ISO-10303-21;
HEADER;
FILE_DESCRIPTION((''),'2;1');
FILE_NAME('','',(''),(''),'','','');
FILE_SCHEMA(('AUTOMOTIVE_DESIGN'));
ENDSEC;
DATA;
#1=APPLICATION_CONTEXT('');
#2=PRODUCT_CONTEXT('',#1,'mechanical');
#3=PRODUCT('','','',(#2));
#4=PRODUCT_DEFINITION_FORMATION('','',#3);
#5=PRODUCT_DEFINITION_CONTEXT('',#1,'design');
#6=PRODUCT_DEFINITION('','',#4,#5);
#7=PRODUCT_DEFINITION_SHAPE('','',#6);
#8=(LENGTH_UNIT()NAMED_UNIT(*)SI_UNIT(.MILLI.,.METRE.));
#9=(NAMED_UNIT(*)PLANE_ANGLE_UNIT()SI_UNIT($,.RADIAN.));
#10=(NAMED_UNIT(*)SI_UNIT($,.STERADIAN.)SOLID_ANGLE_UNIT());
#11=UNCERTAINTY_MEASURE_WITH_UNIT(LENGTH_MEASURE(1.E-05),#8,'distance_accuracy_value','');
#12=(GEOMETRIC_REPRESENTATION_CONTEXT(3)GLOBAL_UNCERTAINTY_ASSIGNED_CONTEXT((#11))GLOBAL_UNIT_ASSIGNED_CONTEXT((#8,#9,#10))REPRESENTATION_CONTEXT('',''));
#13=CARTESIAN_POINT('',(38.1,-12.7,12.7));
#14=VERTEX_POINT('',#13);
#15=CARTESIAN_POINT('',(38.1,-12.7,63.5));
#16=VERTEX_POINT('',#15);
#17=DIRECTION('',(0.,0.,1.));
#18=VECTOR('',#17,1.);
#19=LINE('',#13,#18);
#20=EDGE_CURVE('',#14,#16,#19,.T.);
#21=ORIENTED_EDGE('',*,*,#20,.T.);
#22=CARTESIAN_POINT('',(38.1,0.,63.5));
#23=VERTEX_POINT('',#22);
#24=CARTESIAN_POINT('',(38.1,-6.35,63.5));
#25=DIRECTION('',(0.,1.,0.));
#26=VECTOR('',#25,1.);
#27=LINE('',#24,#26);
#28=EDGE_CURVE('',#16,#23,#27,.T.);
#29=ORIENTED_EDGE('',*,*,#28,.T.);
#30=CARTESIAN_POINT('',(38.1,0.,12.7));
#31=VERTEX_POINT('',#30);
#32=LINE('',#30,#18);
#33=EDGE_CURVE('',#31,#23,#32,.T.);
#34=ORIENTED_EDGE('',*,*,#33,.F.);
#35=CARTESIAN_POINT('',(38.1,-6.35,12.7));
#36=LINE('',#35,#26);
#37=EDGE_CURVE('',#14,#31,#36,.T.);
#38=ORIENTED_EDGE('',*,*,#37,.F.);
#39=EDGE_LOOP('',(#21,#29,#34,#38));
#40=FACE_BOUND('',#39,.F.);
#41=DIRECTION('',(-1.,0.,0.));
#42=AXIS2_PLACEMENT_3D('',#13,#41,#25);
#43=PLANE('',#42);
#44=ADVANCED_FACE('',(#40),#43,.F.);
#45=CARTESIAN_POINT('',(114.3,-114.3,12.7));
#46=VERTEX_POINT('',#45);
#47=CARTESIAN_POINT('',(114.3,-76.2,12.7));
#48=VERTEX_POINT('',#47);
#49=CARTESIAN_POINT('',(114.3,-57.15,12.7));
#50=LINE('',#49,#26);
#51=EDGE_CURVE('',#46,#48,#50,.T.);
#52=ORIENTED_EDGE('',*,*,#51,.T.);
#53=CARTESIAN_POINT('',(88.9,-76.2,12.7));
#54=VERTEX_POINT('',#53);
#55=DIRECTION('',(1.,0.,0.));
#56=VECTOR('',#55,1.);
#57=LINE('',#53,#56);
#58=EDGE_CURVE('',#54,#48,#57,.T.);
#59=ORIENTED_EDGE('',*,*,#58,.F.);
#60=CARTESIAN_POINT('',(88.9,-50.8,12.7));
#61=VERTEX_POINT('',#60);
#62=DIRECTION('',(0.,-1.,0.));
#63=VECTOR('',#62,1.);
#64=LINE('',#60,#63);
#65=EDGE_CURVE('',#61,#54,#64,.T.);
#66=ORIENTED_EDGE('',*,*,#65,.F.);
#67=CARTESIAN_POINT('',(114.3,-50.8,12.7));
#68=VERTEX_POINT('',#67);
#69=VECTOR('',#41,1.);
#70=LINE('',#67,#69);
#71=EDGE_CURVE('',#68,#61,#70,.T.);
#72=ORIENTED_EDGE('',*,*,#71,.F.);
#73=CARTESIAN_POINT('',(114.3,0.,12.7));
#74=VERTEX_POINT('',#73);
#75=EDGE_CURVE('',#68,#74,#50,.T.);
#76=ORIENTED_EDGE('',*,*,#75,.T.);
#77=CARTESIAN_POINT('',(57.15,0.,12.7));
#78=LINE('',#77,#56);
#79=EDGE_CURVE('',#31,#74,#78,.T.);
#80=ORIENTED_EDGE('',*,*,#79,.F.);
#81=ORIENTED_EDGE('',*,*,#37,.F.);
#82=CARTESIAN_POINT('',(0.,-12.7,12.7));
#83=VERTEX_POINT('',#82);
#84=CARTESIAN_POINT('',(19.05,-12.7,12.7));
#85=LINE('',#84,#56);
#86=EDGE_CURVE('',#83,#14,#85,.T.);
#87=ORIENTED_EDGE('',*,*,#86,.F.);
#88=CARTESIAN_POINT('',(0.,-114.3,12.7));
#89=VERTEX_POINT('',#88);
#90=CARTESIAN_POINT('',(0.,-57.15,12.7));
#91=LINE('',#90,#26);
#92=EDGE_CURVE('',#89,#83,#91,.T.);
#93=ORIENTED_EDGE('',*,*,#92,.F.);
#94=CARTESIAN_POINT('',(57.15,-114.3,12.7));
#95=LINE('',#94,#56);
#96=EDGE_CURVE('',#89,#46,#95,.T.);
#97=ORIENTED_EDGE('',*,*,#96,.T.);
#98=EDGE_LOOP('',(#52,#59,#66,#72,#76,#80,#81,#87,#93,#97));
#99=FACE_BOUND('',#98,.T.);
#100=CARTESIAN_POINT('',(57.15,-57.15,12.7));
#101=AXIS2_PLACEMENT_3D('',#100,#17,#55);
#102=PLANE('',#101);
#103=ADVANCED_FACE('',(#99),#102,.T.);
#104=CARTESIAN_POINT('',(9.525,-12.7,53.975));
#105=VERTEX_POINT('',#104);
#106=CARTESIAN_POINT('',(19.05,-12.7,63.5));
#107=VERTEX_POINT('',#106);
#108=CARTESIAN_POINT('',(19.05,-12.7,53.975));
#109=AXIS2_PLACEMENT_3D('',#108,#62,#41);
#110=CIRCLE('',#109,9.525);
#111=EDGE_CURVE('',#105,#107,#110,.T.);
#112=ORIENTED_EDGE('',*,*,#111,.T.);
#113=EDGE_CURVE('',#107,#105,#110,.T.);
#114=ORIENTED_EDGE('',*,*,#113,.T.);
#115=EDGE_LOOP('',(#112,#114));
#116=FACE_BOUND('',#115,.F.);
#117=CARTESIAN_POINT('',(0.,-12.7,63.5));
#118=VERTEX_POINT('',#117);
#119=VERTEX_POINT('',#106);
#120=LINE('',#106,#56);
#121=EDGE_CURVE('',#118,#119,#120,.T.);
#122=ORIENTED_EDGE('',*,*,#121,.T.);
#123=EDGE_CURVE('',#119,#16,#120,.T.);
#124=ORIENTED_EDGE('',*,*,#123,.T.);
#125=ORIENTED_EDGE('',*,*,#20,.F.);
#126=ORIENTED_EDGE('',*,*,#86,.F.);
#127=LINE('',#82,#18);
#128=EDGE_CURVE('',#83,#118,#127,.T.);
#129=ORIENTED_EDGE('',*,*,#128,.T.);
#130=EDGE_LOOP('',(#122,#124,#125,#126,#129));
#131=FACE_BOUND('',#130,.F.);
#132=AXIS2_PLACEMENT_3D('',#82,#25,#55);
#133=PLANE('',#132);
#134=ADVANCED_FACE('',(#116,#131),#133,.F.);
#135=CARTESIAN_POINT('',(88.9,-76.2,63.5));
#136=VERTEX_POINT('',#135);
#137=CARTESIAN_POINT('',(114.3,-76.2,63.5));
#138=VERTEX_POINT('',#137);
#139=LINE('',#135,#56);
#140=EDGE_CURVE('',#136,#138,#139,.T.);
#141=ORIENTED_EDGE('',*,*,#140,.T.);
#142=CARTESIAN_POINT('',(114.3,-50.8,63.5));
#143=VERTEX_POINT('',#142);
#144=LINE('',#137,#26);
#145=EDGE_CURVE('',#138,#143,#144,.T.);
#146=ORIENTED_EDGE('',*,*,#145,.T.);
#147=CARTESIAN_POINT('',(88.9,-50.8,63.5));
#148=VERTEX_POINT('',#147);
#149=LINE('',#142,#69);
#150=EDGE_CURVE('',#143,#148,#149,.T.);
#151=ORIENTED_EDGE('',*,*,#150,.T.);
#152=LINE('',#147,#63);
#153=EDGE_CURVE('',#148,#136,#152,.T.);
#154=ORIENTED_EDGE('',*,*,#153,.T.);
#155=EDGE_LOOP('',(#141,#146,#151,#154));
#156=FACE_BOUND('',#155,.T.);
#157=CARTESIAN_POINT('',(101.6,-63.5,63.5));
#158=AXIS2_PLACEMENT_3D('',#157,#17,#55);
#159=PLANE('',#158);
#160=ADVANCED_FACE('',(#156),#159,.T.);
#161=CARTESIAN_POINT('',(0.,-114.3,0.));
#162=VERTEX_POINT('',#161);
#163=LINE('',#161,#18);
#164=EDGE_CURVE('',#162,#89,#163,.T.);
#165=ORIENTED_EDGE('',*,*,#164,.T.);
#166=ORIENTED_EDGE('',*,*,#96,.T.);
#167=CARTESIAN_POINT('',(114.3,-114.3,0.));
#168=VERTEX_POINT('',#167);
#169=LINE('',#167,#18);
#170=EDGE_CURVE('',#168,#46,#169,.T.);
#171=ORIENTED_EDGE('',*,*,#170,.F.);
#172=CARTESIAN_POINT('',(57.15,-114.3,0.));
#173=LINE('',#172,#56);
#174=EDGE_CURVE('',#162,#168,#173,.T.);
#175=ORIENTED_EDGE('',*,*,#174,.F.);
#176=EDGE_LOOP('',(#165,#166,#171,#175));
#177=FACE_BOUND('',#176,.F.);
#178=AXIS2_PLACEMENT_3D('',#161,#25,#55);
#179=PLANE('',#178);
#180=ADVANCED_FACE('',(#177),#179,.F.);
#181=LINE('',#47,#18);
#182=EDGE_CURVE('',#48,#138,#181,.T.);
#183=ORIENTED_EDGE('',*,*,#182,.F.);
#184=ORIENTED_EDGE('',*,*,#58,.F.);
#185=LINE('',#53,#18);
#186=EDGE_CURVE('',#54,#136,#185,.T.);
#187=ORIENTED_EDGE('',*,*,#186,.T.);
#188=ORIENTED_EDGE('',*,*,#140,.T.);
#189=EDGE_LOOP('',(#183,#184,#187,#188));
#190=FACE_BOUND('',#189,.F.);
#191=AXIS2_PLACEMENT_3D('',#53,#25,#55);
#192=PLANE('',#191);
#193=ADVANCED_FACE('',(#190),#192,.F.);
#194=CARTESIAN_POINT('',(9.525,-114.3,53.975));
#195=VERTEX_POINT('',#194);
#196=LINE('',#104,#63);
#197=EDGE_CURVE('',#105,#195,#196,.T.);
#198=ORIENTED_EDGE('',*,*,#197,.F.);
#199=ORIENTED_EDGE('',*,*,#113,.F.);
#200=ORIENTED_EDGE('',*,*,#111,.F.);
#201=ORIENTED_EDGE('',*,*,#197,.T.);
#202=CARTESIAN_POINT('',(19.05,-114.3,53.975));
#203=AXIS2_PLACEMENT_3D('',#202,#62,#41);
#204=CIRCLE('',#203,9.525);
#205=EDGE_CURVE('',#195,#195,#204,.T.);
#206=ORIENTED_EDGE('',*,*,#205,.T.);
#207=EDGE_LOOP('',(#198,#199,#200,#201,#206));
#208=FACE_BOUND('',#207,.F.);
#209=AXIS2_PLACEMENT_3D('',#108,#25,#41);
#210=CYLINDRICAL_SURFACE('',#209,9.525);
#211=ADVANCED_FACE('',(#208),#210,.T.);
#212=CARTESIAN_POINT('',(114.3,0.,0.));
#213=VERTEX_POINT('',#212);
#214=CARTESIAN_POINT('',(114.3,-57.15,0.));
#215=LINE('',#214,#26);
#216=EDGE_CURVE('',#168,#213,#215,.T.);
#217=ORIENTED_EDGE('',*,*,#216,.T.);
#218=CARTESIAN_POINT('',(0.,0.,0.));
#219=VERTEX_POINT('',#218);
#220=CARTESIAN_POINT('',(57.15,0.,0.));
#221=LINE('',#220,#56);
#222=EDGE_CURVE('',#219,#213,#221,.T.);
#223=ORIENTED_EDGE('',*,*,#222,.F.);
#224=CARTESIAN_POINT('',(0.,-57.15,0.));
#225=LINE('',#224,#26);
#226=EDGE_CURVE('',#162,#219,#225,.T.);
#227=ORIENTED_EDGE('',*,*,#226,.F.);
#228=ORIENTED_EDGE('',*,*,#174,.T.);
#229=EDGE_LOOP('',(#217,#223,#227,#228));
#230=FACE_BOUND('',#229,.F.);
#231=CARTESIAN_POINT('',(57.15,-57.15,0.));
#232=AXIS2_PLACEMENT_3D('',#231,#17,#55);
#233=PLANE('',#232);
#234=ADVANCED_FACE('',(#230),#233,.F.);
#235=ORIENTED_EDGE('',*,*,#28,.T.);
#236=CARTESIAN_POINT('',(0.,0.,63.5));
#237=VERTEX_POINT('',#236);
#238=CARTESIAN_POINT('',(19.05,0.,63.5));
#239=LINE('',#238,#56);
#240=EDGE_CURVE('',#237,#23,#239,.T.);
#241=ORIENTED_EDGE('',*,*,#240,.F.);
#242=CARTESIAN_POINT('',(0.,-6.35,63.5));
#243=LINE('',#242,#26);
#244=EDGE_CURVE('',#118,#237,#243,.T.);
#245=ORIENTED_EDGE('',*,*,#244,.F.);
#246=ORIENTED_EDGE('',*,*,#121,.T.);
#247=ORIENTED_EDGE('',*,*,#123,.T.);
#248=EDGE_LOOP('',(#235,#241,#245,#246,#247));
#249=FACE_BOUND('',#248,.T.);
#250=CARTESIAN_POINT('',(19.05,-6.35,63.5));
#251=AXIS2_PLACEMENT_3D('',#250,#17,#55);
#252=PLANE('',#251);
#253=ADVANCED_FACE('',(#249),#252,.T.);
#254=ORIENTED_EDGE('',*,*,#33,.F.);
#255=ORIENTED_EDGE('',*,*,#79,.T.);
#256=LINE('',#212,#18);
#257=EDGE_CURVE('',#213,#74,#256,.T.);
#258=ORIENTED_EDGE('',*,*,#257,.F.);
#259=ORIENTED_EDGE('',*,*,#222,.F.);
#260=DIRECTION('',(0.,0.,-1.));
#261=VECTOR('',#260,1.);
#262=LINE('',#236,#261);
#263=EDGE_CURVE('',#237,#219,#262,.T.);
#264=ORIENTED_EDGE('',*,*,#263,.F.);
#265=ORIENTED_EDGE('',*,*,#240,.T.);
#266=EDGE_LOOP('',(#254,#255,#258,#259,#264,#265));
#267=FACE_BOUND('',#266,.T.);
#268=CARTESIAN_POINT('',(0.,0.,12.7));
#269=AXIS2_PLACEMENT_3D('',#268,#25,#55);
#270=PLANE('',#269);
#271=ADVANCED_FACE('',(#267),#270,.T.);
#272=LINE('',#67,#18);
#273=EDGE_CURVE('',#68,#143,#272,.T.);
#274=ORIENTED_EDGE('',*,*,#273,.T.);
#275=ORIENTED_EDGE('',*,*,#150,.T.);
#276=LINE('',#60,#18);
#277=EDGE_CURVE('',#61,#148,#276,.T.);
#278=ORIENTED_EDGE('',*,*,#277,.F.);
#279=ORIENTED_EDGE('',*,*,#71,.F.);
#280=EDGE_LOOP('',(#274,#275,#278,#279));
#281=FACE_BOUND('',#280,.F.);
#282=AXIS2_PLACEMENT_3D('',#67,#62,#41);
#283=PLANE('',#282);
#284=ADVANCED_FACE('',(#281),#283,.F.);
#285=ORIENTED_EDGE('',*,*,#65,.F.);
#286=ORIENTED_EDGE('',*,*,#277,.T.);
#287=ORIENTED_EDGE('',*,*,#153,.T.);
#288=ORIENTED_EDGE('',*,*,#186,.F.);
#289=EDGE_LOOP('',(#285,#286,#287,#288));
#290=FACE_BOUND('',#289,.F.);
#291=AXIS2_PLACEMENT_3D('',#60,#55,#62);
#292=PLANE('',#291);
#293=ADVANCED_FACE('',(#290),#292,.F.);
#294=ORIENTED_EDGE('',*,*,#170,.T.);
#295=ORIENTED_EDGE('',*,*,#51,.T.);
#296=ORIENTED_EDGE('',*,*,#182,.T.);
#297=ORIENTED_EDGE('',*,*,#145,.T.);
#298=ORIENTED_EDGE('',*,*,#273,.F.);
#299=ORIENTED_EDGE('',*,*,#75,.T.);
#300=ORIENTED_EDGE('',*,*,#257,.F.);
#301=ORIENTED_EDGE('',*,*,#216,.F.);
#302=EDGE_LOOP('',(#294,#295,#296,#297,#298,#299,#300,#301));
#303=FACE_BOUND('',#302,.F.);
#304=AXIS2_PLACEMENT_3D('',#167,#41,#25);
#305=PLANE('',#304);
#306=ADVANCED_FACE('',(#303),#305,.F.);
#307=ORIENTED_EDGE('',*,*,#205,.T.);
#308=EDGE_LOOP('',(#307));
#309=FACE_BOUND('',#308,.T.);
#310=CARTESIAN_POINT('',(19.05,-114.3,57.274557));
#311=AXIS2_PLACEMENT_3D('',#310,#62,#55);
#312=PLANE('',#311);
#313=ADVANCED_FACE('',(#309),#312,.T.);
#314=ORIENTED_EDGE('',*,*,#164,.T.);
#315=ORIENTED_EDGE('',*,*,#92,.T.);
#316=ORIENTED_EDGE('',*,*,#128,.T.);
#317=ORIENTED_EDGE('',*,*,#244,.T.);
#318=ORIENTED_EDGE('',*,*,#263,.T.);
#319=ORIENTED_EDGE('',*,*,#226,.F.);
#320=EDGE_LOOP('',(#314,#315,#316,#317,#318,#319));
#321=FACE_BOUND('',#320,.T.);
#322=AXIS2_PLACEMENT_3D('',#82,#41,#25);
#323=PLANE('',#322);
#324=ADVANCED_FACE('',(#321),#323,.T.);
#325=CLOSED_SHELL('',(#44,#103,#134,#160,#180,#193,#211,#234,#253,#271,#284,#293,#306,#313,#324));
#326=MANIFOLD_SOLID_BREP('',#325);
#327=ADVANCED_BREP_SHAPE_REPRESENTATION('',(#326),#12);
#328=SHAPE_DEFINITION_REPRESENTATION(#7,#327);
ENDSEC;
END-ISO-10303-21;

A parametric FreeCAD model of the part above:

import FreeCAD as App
import Part
import Sketcher
Q = App.Units.Quantity


def add_polygon(sketch, points):
    """Adds a closed chain of lines whose ends are joined by coincident constraints."""
    first, n = sketch.GeometryCount, len(points)
    for a, b in zip(points, points[1:] + points[:1]):
        sketch.addGeometry(Part.LineSegment(App.Vector(*a, 0), App.Vector(*b, 0)), False)
    for i in range(n):
        sketch.addConstraint(Sketcher.Constraint("Coincident", first + i, 2, first + (i + 1) % n, 1))

doc = App.newDocument("Part")
body = doc.addObject("PartDesign::Body", "Body")

sketch1 = doc.addObject("Sketcher::SketchObject", "Sketch")
body.addObject(sketch1)
sketch1.AttachmentSupport = (doc.XY_Plane, [""])
sketch1.MapMode = "FlatFace"
add_polygon(sketch1, [(0, 0), (0, -114.3), (114.3, -114.3), (114.3, 0)])
sketch1.addConstraint(Sketcher.Constraint("Vertical", 0))
sketch1.addConstraint(Sketcher.Constraint("Horizontal", 1))
sketch1.addConstraint(Sketcher.Constraint("Vertical", 2))
sketch1.addConstraint(Sketcher.Constraint("Horizontal", 3))
sketch1.addConstraint(Sketcher.Constraint("Coincident", 3, 2, -1, 1))
sketch1.addConstraint(Sketcher.Constraint("Equal", 3, 0))
sketch1.addConstraint(Sketcher.Constraint("DistanceX", 1, 1, 1, 2, Q("4.5 in")))
pad1 = doc.addObject("PartDesign::Pad", "Pad")
body.addObject(pad1)
pad1.Profile = sketch1
pad1.Length = Q("0.5 in")

sketch2 = doc.addObject("Sketcher::SketchObject", "Sketch001")
body.addObject(sketch2)
sketch2.AttachmentSupport = (doc.XY_Plane, [""])
sketch2.MapMode = "FlatFace"
sketch2.AttachmentOffset = App.Placement(App.Vector(0, 0, 0.5 * 25.4), App.Rotation())
add_polygon(sketch2, [(0, 0), (0, -12.7), (38.1, -12.7), (38.1, 0)])
sketch2.addConstraint(Sketcher.Constraint("Vertical", 0))
sketch2.addConstraint(Sketcher.Constraint("Horizontal", 1))
sketch2.addConstraint(Sketcher.Constraint("Vertical", 2))
sketch2.addConstraint(Sketcher.Constraint("Horizontal", 3))
sketch2.addConstraint(Sketcher.Constraint("Coincident", 3, 2, -1, 1))
sketch2.addConstraint(Sketcher.Constraint("DistanceX", 1, 1, 1, 2, Q("1.5 in")))
sketch2.addConstraint(Sketcher.Constraint("DistanceY", 0, 2, 0, 1, Q("0.5 in")))
pad2 = doc.addObject("PartDesign::Pad", "Pad001")
body.addObject(pad2)
pad2.Profile = sketch2
pad2.Length = Q("2 in")

sketch3 = doc.addObject("Sketcher::SketchObject", "Sketch002")
body.addObject(sketch3)
sketch3.AttachmentSupport = (doc.XZ_Plane, [""])
sketch3.MapMode = "FlatFace"
sketch3.AttachmentOffset = App.Placement(App.Vector(0, 0, 0.5 * 25.4), App.Rotation())
sketch3.addGeometry(Part.Circle(App.Vector(19.05, 53.975, 0), App.Vector(0, 0, 1), 9.525), False)
sketch3.addConstraint(Sketcher.Constraint("Diameter", 0, Q("0.75 in")))
sketch3.addConstraint(Sketcher.Constraint("DistanceX", -1, 1, 0, 3, Q("0.75 in")))
sketch3.addConstraint(Sketcher.Constraint("DistanceY", -1, 1, 0, 3, Q("2.125 in")))
pad3 = doc.addObject("PartDesign::Pad", "Pad002")
body.addObject(pad3)
pad3.Profile = sketch3
pad3.Length = Q("4 in")

sketch4 = doc.addObject("Sketcher::SketchObject", "Sketch003")
body.addObject(sketch4)
sketch4.AttachmentSupport = (doc.XY_Plane, [""])
sketch4.MapMode = "FlatFace"
sketch4.AttachmentOffset = App.Placement(App.Vector(0, 0, 0.5 * 25.4), App.Rotation())
add_polygon(sketch4, [(114.3, -76.2), (114.3, -50.8), (88.9, -50.8), (88.9, -76.2)])
sketch4.addConstraint(Sketcher.Constraint("Vertical", 0))
sketch4.addConstraint(Sketcher.Constraint("Horizontal", 1))
sketch4.addConstraint(Sketcher.Constraint("Vertical", 2))
sketch4.addConstraint(Sketcher.Constraint("Horizontal", 3))
sketch4.addConstraint(Sketcher.Constraint("Equal", 3, 0))
sketch4.addConstraint(Sketcher.Constraint("DistanceX", 1, 2, 1, 1, Q("1 in")))
sketch4.addConstraint(Sketcher.Constraint("DistanceY", 0, 2, -1, 1, Q("2 in")))
sketch4.addConstraint(Sketcher.Constraint("DistanceX", -1, 1, 0, 2, Q("4.5 in")))
pad4 = doc.addObject("PartDesign::Pad", "Pad003")
body.addObject(pad4)
pad4.Profile = sketch4
pad4.Length = Q("2 in")

doc.recompute()
